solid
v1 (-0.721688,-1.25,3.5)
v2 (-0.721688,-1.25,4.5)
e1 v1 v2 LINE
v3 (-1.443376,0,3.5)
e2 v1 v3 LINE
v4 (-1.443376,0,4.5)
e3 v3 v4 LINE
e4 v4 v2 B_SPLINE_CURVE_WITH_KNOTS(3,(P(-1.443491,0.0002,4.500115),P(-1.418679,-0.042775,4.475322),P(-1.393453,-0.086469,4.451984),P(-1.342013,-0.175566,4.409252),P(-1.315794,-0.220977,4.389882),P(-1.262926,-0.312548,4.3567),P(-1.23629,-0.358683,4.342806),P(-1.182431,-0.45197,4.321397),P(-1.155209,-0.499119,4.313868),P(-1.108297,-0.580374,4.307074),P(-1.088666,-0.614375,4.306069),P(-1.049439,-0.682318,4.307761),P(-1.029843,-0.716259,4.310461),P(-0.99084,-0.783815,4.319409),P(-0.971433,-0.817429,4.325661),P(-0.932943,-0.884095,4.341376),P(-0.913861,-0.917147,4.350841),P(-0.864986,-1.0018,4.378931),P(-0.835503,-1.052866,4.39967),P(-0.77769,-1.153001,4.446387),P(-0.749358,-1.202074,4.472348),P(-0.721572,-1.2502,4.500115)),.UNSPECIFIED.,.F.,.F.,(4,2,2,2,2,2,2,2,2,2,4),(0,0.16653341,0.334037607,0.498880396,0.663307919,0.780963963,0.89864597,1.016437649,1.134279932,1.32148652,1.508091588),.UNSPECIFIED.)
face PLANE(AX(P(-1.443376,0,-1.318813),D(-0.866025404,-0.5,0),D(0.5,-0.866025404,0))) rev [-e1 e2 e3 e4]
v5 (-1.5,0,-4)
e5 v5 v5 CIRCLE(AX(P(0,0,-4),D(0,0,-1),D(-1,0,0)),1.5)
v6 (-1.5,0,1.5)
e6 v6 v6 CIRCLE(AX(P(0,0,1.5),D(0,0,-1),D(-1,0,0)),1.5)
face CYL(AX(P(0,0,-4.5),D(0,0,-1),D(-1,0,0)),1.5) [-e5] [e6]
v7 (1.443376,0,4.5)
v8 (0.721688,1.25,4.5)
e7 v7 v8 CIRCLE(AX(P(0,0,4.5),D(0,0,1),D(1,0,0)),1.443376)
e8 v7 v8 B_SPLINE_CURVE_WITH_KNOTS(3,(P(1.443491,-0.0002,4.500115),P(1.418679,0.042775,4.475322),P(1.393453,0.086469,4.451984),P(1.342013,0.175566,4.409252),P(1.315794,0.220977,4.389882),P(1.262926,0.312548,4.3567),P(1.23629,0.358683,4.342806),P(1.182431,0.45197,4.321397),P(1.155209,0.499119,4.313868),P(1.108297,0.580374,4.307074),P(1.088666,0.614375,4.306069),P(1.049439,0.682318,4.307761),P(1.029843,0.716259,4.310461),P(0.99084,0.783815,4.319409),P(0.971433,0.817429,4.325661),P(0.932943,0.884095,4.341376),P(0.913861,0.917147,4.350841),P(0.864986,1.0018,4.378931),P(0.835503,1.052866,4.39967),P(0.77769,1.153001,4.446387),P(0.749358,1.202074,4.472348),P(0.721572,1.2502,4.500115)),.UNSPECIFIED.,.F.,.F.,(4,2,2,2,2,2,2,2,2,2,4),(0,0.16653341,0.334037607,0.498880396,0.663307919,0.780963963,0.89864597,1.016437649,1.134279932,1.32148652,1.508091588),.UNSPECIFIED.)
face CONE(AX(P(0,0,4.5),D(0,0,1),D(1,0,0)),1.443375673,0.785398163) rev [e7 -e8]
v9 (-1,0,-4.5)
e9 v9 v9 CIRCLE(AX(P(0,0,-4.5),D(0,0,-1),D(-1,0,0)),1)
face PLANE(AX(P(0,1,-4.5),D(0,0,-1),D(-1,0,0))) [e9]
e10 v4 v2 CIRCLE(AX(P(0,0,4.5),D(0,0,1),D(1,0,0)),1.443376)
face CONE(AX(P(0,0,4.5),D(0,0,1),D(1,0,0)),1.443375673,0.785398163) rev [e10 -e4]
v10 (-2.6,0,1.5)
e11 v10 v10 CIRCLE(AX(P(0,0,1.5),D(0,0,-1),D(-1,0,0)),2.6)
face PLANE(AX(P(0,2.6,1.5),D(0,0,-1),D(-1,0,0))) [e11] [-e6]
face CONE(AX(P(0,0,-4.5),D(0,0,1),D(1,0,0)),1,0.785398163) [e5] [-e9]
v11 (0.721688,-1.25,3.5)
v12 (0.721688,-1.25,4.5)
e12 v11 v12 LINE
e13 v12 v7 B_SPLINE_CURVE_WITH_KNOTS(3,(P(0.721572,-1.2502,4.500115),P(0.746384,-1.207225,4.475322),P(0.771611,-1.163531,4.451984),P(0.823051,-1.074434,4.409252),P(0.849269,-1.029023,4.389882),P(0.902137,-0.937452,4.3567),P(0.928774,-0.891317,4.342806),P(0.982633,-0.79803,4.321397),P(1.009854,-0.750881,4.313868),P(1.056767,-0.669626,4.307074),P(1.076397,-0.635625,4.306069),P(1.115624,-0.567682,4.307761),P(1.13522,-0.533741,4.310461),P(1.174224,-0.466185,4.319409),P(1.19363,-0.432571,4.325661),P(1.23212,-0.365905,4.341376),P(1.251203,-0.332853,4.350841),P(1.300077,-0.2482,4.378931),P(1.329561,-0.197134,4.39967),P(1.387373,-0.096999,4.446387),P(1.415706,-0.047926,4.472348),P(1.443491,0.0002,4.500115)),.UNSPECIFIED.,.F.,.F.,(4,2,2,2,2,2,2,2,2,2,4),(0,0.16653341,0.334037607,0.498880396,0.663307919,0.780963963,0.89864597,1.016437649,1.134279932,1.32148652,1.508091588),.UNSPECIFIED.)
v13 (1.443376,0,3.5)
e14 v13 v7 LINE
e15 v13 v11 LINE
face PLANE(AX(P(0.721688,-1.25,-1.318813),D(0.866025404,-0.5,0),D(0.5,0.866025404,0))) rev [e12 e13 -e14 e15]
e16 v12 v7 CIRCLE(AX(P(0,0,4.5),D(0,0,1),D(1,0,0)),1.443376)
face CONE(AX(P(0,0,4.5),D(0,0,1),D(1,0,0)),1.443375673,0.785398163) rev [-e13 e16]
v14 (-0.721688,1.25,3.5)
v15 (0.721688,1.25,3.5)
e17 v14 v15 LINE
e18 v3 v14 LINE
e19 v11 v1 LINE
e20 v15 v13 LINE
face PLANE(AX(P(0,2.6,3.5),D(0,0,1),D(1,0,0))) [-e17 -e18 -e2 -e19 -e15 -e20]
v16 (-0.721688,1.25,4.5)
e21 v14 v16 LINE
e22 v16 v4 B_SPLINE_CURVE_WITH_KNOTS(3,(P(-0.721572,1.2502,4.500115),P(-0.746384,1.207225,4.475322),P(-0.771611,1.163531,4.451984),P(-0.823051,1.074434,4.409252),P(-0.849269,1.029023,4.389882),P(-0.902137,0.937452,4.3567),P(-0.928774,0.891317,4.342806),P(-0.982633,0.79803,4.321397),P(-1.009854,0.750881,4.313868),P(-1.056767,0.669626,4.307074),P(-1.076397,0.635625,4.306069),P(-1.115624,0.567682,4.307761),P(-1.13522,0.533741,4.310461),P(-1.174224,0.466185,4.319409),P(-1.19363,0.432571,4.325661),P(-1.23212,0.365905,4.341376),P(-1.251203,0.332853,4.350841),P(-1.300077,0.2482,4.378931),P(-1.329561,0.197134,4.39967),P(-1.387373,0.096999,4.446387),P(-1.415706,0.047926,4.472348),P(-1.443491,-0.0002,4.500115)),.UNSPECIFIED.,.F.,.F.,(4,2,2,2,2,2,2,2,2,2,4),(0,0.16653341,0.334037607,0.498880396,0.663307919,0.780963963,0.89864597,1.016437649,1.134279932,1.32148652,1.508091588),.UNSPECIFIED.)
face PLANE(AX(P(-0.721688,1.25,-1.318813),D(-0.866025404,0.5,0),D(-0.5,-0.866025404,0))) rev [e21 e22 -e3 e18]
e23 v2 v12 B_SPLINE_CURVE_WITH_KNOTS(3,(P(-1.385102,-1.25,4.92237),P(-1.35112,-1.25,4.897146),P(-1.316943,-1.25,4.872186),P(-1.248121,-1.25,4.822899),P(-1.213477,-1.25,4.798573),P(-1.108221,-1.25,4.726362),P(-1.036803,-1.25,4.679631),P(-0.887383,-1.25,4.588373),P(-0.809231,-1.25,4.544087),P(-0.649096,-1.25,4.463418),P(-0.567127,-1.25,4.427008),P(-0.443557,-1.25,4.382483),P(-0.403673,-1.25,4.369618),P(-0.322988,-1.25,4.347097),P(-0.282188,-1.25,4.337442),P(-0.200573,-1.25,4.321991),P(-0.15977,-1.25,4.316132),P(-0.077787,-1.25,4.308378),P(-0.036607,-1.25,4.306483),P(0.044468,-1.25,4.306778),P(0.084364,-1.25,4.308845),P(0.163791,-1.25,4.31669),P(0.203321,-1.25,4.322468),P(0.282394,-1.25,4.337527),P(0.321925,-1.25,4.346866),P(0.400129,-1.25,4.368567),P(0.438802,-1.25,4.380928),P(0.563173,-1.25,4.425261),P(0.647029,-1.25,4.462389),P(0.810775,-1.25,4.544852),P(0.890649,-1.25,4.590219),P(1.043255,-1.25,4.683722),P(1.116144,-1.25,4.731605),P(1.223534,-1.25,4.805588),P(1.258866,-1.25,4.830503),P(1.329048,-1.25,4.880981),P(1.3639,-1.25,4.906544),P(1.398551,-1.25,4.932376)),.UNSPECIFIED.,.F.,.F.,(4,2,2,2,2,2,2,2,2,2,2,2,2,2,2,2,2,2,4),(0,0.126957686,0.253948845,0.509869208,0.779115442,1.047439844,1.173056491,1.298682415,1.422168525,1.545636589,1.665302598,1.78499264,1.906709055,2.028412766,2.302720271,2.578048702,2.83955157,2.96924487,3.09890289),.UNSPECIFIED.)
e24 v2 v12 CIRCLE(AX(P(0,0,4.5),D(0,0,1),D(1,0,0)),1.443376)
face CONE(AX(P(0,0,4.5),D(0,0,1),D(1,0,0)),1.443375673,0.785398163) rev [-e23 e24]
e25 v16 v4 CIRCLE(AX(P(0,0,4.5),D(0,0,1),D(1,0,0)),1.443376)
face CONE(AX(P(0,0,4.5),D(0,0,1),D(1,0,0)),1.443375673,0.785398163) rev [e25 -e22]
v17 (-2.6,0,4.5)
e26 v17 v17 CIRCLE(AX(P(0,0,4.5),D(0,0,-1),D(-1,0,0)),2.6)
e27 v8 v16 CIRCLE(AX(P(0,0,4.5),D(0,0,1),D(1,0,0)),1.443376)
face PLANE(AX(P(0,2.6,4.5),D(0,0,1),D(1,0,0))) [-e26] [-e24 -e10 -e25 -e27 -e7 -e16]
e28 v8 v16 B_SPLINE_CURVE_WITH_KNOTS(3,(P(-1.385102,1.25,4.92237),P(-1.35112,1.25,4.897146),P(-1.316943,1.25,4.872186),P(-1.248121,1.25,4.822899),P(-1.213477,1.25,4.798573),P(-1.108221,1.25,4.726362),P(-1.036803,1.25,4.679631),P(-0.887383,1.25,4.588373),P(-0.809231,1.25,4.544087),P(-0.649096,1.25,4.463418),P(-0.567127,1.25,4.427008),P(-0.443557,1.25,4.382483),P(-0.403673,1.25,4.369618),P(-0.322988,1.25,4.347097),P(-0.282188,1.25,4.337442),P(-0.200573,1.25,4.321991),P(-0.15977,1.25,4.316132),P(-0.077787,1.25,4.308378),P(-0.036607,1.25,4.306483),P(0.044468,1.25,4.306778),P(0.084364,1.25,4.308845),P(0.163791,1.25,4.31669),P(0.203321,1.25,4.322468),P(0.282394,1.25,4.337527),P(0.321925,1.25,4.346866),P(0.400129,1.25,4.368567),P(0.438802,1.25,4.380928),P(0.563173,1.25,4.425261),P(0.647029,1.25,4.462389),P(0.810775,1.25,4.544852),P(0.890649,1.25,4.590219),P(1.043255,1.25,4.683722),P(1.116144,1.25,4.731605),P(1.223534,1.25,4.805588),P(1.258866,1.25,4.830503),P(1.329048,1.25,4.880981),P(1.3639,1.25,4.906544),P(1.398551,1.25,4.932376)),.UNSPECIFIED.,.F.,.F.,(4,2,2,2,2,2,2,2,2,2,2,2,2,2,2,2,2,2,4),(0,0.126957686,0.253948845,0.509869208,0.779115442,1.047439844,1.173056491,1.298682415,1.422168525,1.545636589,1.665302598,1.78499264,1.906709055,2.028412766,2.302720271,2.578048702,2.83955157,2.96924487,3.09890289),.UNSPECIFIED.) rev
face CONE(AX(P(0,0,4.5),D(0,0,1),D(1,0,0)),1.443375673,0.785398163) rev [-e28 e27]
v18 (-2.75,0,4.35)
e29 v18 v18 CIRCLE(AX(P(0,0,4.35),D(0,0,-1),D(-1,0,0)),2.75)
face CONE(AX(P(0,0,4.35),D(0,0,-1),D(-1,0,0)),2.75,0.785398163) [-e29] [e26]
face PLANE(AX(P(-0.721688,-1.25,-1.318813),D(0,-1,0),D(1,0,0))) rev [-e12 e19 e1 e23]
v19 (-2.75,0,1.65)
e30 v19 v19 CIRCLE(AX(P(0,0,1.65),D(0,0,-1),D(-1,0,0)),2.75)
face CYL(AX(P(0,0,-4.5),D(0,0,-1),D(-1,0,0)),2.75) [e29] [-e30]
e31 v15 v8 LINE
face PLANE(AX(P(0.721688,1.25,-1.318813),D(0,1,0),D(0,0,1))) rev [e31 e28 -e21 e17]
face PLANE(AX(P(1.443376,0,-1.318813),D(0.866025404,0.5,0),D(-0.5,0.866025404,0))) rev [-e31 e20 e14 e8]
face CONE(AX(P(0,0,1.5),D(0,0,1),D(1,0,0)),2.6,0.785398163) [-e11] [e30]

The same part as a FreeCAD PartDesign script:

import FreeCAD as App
import Part
import Sketcher
Q = App.Units.Quantity


def faces_at(feature, points):
    """Names of the faces that lie closest to the given points."""
    faces = feature.Shape.Faces
    near = lambda p: min(range(len(faces)), key=lambda i: faces[i].distToShape(Part.Vertex(*p))[0])
    return sorted({f"Face{near(p) + 1}" for p in points})


def add_polygon(sketch, points):
    """Adds a closed chain of lines whose ends are joined by coincident constraints."""
    first, n = sketch.GeometryCount, len(points)
    for a, b in zip(points, points[1:] + points[:1]):
        sketch.addGeometry(Part.LineSegment(App.Vector(*a, 0), App.Vector(*b, 0)), False)
    for i in range(n):
        sketch.addConstraint(Sketcher.Constraint("Coincident", first + i, 2, first + (i + 1) % n, 1))

doc = App.newDocument("Part")
body = doc.addObject("PartDesign::Body", "Body")

sketch1 = body.newObject("Sketcher::SketchObject", "Sketch")
sketch1.AttachmentSupport = (doc.getObject("YZ_Plane"), [""])
sketch1.MapMode = "FlatFace"
add_polygon(sketch1, [(2.75, 1.65), (2.75, 4.35), (2.6, 4.5), (0, 4.5), (0, -4.5), (1, -4.5), (1.5, -4), (1.5, 1.5), (2.6, 1.5)])
sketch1.addConstraint(Sketcher.Constraint("Vertical", 0))
sketch1.addConstraint(Sketcher.Constraint("Horizontal", 2))
sketch1.addConstraint(Sketcher.Constraint("Vertical", 3))
sketch1.addConstraint(Sketcher.Constraint("Horizontal", 4))
sketch1.addConstraint(Sketcher.Constraint("Vertical", 6))
sketch1.addConstraint(Sketcher.Constraint("Horizontal", 7))
sketch1.addConstraint(Sketcher.Constraint("Symmetric", 2, 2, 3, 2, -1, 1))
sketch1.addConstraint(Sketcher.Constraint("Perpendicular", 1, 5))
sketch1.addConstraint(Sketcher.Constraint("Parallel", 5, 8))
sketch1.addConstraint(Sketcher.Constraint("Vertical", 1, 2, 7, 2))
sketch1.addConstraint(Sketcher.Constraint("Equal", 1, 8))
sketch1.addConstraint(Sketcher.Constraint("DistanceX", 4, 1, 4, 2, 1.0))
sketch1.addConstraint(Sketcher.Constraint("DistanceY", 3, 2, 3, 1, 9.0))
sketch1.addConstraint(Sketcher.Constraint("DistanceX", 2, 2, 2, 1, 2.6))
sketch1.addConstraint(Sketcher.Constraint("DistanceX", 7, 1, 7, 2, 1.1))
sketch1.addConstraint(Sketcher.Constraint("DistanceY", 0, 1, 0, 2, 2.7))
sketch1.addConstraint(Sketcher.Constraint("DistanceY", 6, 1, 6, 2, 5.5))
revolution = body.newObject("PartDesign::Revolution", "Revolution")
revolution.Profile = sketch1
revolution.ReferenceAxis = (sketch1, ["V_Axis"])
revolution.Angle = 360

sketch2 = body.newObject("Sketcher::SketchObject", "Sketch001")
sketch2.AttachmentSupport = (doc.getObject("XY_Plane"), [""])
sketch2.MapMode = "FlatFace"
sketch2.AttachmentOffset = App.Placement(App.Vector(0, 0, 4.5), App.Rotation())
add_polygon(sketch2, [(0.7, 1.2), (-0.7, 1.2), (-1.4, 0), (-0.7, -1.2), (0.7, -1.2), (1.4, 0)])
sketch2.addConstraint(Sketcher.Constraint("Horizontal", 0))
sketch2.addConstraint(Sketcher.Constraint("Horizontal", 3))
sketch2.addConstraint(Sketcher.Constraint("Symmetric", 0, 2, 3, 2, -1, 1))
sketch2.addConstraint(Sketcher.Constraint("Symmetric", 1, 2, 4, 2, -1, 1))
sketch2.addConstraint(Sketcher.Constraint("PointOnObject", 1, 2, -1))
sketch2.addConstraint(Sketcher.Constraint("Parallel", 2, 5))
sketch2.addConstraint(Sketcher.Constraint("Vertical", 0, 2, 2, 2))
sketch2.addConstraint(Sketcher.Constraint("Angle", 1, Q("-120 deg")))
sketch2.addConstraint(Sketcher.Constraint("DistanceY", 2, 2, 0, 2, 2.5))
sketch2.addConstraint(Sketcher.Constraint("DistanceX", 0, 2, 0, 1, 1.443376))
pocket1 = body.newObject("PartDesign::Pocket", "Pocket")
pocket1.Profile = sketch2
pocket1.Length = 1
body2 = doc.addObject("PartDesign::Body", "Body001")

sketch3 = body2.newObject("Sketcher::SketchObject", "Sketch002")
sketch3.AttachmentSupport = (doc.getObject("XY_Plane001"), [""])
sketch3.MapMode = "FlatFace"
sketch3.AttachmentOffset = App.Placement(App.Vector(0, 0, 4.5), App.Rotation())
sketch3.addGeometry(Part.Circle(App.Vector(0, 0, 0), App.Vector(0, 0, 1), 1.4), False)
sketch3.addConstraint(Sketcher.Constraint("Coincident", 0, 3, -1, 1))
sketch3.addConstraint(Sketcher.Constraint("Diameter", 0, 2.886751))
pad1 = body2.newObject("PartDesign::Pad", "Pad")
pad1.Profile = sketch3
pad1.Length = 0.5
pad1.Reversed = True
doc.recompute()

datumplane = body2.newObject("PartDesign::Plane", "DatumPlane")
datumplane.AttachmentSupport = (doc.getObject("XY_Plane001"), [""])
datumplane.MapMode = "FlatFace"
datumplane.AttachmentOffset = App.Placement(App.Vector(0, 0, 4.5), App.Rotation())
draft = body2.newObject("PartDesign::Draft", "Draft")
draft.Base = (pad1, faces_at(pad1, [(-1.443, 0, 4.25)]))
draft.NeutralPlane = (datumplane, [""])
draft.Angle = 45
draft.Reversed = True
doc.recompute()

boolean = body.newObject("PartDesign::Boolean", "Boolean")
boolean.Type = "Cut"
boolean.addObjects([body2])

doc.recompute()
